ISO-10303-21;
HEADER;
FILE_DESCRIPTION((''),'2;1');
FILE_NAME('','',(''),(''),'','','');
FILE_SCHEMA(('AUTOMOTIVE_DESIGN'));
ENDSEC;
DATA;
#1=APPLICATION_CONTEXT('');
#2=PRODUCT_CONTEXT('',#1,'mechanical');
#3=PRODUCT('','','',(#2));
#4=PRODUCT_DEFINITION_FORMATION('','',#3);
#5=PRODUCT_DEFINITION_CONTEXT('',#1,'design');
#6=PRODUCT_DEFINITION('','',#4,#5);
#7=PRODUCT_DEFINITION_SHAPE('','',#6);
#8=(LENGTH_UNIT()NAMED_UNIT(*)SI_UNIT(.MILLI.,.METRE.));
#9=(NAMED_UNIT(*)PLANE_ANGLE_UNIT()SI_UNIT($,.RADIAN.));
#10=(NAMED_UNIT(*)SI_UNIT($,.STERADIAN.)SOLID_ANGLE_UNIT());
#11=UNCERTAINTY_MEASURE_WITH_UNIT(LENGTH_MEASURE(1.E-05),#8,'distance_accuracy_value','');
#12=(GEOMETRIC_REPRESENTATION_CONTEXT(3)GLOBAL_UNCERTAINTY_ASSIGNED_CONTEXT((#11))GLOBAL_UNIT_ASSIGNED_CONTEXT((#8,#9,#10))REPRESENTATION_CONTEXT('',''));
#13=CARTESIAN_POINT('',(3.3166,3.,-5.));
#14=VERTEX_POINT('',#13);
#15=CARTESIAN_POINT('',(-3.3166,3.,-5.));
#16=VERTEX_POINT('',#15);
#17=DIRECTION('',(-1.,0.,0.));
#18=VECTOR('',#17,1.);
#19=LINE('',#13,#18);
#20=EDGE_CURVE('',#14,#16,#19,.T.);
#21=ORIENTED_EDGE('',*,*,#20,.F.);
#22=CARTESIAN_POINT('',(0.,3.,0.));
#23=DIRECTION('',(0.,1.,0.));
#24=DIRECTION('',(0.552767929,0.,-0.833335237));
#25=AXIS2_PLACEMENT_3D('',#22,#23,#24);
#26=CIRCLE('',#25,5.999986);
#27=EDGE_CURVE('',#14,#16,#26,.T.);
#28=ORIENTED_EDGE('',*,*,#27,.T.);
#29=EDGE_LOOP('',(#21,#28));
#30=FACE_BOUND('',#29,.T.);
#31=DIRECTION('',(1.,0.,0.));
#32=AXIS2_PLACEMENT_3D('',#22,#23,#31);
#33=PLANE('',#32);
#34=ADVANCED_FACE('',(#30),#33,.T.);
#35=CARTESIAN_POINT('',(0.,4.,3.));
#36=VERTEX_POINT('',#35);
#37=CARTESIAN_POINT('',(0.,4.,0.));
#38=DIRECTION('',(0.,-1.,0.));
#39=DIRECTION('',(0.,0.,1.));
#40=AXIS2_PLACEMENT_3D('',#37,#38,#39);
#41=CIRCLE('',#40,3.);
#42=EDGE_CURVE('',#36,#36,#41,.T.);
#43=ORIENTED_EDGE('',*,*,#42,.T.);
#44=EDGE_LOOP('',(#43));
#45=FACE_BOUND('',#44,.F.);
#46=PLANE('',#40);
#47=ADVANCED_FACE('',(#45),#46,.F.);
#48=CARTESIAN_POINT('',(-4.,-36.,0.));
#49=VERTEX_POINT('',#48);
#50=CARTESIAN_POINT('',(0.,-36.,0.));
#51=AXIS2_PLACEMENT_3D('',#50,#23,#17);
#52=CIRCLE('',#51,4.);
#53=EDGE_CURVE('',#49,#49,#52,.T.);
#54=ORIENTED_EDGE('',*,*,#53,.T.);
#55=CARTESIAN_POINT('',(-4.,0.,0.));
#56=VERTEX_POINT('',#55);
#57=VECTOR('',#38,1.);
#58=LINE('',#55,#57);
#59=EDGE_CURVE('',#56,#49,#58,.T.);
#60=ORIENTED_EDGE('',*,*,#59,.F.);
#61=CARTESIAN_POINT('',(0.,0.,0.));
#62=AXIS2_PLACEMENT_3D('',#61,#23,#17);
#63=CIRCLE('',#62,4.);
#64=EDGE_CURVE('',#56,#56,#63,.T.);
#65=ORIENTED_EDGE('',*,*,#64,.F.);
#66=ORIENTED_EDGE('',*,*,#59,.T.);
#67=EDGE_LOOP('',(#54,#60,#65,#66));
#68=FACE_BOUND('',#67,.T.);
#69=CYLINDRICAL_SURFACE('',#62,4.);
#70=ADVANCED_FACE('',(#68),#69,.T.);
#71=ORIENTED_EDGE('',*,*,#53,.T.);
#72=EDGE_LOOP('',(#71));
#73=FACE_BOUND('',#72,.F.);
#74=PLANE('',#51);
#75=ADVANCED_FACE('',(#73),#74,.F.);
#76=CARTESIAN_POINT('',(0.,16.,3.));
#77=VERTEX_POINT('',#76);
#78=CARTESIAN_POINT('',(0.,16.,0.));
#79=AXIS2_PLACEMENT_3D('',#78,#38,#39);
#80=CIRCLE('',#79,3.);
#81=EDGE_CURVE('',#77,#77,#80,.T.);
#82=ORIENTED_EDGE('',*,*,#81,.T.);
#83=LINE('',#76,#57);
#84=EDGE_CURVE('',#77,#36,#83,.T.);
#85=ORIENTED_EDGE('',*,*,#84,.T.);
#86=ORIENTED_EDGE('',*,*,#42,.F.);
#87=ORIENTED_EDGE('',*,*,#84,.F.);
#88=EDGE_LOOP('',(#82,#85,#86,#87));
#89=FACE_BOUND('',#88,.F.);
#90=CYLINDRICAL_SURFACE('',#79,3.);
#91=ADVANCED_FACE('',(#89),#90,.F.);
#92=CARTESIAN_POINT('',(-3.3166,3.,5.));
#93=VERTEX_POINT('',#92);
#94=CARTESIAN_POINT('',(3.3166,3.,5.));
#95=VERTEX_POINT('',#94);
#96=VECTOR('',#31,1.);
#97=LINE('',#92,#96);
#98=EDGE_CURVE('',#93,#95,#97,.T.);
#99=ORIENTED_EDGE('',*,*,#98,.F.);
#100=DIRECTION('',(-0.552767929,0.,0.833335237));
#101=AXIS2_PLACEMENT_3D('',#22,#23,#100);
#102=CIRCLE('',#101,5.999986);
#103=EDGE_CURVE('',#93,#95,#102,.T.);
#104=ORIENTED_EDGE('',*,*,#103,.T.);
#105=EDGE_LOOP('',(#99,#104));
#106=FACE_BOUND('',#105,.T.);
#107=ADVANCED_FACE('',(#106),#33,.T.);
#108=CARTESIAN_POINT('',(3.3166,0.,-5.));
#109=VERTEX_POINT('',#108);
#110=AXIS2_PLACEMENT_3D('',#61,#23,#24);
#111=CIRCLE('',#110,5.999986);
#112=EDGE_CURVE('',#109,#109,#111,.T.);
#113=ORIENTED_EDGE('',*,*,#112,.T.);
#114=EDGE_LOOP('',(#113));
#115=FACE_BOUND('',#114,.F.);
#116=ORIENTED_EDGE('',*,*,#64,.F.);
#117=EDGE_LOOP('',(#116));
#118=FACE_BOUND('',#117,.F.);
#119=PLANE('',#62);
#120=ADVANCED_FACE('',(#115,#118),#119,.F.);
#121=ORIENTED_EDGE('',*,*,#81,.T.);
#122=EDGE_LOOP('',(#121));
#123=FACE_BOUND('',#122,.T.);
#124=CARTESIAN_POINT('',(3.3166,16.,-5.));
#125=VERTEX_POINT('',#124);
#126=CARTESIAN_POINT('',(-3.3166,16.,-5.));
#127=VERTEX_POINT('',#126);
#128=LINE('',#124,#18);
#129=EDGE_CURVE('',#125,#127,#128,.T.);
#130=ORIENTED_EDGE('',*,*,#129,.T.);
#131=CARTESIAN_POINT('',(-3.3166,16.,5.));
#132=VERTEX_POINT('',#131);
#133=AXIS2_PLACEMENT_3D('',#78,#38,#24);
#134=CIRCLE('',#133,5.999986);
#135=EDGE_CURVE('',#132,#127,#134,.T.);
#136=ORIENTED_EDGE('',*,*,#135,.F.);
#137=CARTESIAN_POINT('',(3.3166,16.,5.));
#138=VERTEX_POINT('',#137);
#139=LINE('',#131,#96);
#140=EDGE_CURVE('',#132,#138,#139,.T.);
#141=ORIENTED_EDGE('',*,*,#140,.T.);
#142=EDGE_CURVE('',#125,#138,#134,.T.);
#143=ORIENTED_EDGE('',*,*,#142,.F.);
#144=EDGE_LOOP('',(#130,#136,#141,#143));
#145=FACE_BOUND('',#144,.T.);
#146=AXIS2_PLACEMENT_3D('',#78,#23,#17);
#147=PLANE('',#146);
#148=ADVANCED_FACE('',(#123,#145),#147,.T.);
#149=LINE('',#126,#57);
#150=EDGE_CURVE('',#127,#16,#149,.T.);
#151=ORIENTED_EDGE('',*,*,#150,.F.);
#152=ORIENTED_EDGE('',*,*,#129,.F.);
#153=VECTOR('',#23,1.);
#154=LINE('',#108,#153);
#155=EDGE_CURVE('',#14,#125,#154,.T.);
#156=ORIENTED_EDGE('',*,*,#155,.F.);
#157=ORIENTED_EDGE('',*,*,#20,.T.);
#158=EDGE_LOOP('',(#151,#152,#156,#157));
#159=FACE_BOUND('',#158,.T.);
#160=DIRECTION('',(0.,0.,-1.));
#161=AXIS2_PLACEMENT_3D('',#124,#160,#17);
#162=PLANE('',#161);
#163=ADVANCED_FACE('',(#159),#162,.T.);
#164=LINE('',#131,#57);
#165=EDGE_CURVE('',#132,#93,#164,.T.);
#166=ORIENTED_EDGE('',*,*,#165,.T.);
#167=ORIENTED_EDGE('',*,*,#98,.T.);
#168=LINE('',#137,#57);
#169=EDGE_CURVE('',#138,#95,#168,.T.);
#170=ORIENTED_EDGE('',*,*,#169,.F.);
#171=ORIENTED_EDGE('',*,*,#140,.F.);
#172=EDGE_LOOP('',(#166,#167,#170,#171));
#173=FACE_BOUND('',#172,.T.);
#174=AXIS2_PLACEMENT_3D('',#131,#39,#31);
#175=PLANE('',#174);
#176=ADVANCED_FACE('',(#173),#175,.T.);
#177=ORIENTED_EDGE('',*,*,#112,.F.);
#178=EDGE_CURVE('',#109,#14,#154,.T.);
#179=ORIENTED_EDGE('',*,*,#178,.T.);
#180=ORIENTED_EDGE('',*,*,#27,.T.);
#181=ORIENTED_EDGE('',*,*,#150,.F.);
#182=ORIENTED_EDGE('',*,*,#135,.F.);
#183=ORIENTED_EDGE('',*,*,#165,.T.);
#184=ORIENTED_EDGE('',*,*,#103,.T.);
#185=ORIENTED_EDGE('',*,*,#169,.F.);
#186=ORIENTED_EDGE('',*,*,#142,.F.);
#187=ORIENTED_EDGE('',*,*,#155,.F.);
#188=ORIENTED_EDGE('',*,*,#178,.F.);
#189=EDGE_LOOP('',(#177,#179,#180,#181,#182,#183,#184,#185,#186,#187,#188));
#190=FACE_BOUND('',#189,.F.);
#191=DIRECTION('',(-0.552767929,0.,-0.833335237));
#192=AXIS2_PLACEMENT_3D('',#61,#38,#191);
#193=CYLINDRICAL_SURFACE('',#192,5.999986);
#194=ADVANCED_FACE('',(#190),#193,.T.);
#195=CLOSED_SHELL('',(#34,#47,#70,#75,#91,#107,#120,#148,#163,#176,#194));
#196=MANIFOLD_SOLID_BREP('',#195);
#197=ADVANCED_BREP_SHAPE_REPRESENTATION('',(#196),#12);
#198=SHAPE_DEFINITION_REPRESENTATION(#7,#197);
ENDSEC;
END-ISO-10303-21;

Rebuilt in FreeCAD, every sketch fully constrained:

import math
import FreeCAD as App
import Part
import Sketcher
from FreeCAD import Vector

doc = App.newDocument("Part")
body = doc.addObject("PartDesign::Body", "Body")

# Sketch on XZ plane
sketch1 = doc.addObject("Sketcher::SketchObject", "Sketch")
body.addObject(sketch1)
sketch1.AttachmentSupport = (doc.XZ_Plane, [""])
sketch1.MapMode = "FlatFace"
sketch1.addGeometry(Part.Circle(Vector(0, 0, 0), Vector(0, 0, 1), 6), False)
sketch1.addConstraint(Sketcher.Constraint("Coincident", 0, 3, -1, 1))
sketch1.addConstraint(Sketcher.Constraint("Diameter", 0, 12.0))
pad1 = doc.addObject("PartDesign::Pad", "Pad")
body.addObject(pad1)
pad1.Profile = sketch1
pad1.Length = 16
pad1.Reversed = True

# Sketch on XZ plane
sketch2 = doc.addObject("Sketcher::SketchObject", "Sketch001")
body.addObject(sketch2)
sketch2.AttachmentSupport = (doc.XZ_Plane, [""])
sketch2.MapMode = "FlatFace"
sketch2.addGeometry(Part.Circle(Vector(0, 0, 0), Vector(0, 0, 1), 4), False)
sketch2.addConstraint(Sketcher.Constraint("Coincident", 0, 3, -1, 1))
sketch2.addConstraint(Sketcher.Constraint("Diameter", 0, 8.0))
pad2 = doc.addObject("PartDesign::Pad", "Pad001")
body.addObject(pad2)
pad2.Profile = sketch2
pad2.Length = 36

# Sketch on XZ plane
sketch3 = doc.addObject("Sketcher::SketchObject", "Sketch002")
body.addObject(sketch3)
sketch3.AttachmentSupport = (doc.XZ_Plane, [""])
sketch3.MapMode = "FlatFace"
sketch3.AttachmentOffset = App.Placement(Vector(0, 0, -16), App.Rotation())
sketch3.addGeometry(Part.LineSegment(Vector(3, 5, 0), Vector(-3, 5, 0)), False)
sketch3.addGeometry(Part.ArcOfCircle(Part.Circle(Vector(0, 0, 0), Vector(0, 0, 1), 6), math.radians(56), math.radians(124)), False)
sketch3.addGeometry(Part.LineSegment(Vector(-3, -5, 0), Vector(3, -5, 0)), False)
sketch3.addGeometry(Part.ArcOfCircle(Part.Circle(Vector(0, 0, 0), Vector(0, 0, 1), 6), math.radians(-124), math.radians(-56)), False)
sketch3.addConstraint(Sketcher.Constraint("Coincident", 0, 1, 1, 1))
sketch3.addConstraint(Sketcher.Constraint("Coincident", 1, 2, 0, 2))
sketch3.addConstraint(Sketcher.Constraint("Coincident", 2, 1, 3, 1))
sketch3.addConstraint(Sketcher.Constraint("Coincident", 3, 2, 2, 2))
sketch3.addConstraint(Sketcher.Constraint("Horizontal", 0))
sketch3.addConstraint(Sketcher.Constraint("Horizontal", 2))
sketch3.addConstraint(Sketcher.Constraint("Coincident", 1, 3, -1, 1))
sketch3.addConstraint(Sketcher.Constraint("Coincident", 3, 3, -1, 1))
sketch3.addConstraint(Sketcher.Constraint("Equal", 1, 3))
sketch3.addConstraint(Sketcher.Constraint("Vertical", 1, 2, 2, 1))
sketch3.addConstraint(Sketcher.Constraint("Radius", 1, 6.0))
sketch3.addConstraint(Sketcher.Constraint("DistanceY", 2, 1, 1, 2, 10.0))
pocket1 = doc.addObject("PartDesign::Pocket", "Pocket")
body.addObject(pocket1)
pocket1.Profile = sketch3
pocket1.Length = 13
pocket1.Reversed = True

# Sketch on XZ plane
sketch4 = doc.addObject("Sketcher::SketchObject", "Sketch003")
body.addObject(sketch4)
sketch4.AttachmentSupport = (doc.XZ_Plane, [""])
sketch4.MapMode = "FlatFace"
sketch4.AttachmentOffset = App.Placement(Vector(0, 0, -16), App.Rotation())
sketch4.addGeometry(Part.Circle(Vector(0, 0, 0), Vector(0, 0, 1), 3), False)
sketch4.addConstraint(Sketcher.Constraint("Coincident", 0, 3, -1, 1))
sketch4.addConstraint(Sketcher.Constraint("Diameter", 0, 6.0))
doc.recompute()
hole = doc.addObject("PartDesign::Hole", "Hole")
body.addObject(hole)
hole.Profile = sketch4
hole.ThreadType = "None"
hole.Diameter = 6
hole.DepthType = "Dimension"
hole.Depth = 12
hole.DrillPoint = "Flat"
hole.Reversed = True

doc.recompute()
